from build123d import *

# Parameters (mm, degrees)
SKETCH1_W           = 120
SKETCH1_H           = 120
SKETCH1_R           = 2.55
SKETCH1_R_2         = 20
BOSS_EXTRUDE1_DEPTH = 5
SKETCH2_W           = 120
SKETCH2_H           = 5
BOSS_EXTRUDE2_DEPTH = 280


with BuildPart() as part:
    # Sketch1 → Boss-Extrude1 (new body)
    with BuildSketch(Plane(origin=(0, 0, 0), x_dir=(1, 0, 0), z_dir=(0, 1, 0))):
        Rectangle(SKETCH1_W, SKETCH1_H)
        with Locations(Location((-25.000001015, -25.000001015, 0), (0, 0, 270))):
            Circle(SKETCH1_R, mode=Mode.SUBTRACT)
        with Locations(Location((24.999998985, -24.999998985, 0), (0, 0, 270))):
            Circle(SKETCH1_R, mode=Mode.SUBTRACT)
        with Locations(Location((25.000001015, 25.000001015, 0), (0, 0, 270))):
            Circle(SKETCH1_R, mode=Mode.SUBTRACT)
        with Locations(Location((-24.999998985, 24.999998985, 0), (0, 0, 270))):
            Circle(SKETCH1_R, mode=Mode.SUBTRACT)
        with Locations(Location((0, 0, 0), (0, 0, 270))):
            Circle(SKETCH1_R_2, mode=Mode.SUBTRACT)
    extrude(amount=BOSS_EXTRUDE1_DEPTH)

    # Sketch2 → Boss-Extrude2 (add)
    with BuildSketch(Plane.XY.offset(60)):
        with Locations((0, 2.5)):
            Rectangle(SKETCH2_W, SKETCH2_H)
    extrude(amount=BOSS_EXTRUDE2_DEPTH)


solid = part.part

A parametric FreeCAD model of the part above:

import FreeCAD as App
import Part
import Sketcher
from FreeCAD import Vector

doc = App.newDocument("Part")
body = doc.addObject("PartDesign::Body", "Body")

# Sketch on XZ plane
sketch1 = body.newObject("Sketcher::SketchObject", "Sketch")
sketch1.AttachmentSupport = (doc.getObject("XZ_Plane"), [""])
sketch1.MapMode = "FlatFace"
sketch1.addGeometry(Part.LineSegment(Vector(-60, -60, 0), Vector(-60, 60, 0)), False)
sketch1.addGeometry(Part.LineSegment(Vector(-60, 60, 0), Vector(60, 60, 0)), False)
sketch1.addGeometry(Part.LineSegment(Vector(60, 60, 0), Vector(60, -60, 0)), False)
sketch1.addGeometry(Part.LineSegment(Vector(60, -60, 0), Vector(-60, -60, 0)), False)
sketch1.addGeometry(Part.Circle(Vector(-25, 25, 0), Vector(0, 0, 1), 2.5), False)
sketch1.addGeometry(Part.Circle(Vector(0, 0, 0), Vector(0, 0, 1), 20), False)
sketch1.addGeometry(Part.Circle(Vector(25, 25, 0), Vector(0, 0, 1), 2.5), False)
sketch1.addGeometry(Part.Circle(Vector(-25, -25, 0), Vector(0, 0, 1), 2.5), False)
sketch1.addGeometry(Part.Circle(Vector(25, -25, 0), Vector(0, 0, 1), 2.5), False)
sketch1.addConstraint(Sketcher.Constraint("Coincident", 0, 2, 1, 1))
sketch1.addConstraint(Sketcher.Constraint("Coincident", 1, 2, 2, 1))
sketch1.addConstraint(Sketcher.Constraint("Coincident", 2, 2, 3, 1))
sketch1.addConstraint(Sketcher.Constraint("Coincident", 3, 2, 0, 1))
sketch1.addConstraint(Sketcher.Constraint("Vertical", 0))
sketch1.addConstraint(Sketcher.Constraint("Horizontal", 1))
sketch1.addConstraint(Sketcher.Constraint("Vertical", 2))
sketch1.addConstraint(Sketcher.Constraint("Horizontal", 3))
sketch1.addConstraint(Sketcher.Constraint("Coincident", 5, 3, -1, 1))
sketch1.addConstraint(Sketcher.Constraint("Equal", 4, 6))
sketch1.addConstraint(Sketcher.Constraint("Equal", 6, 7))
sketch1.addConstraint(Sketcher.Constraint("Equal", 7, 8))
sketch1.addConstraint(Sketcher.Constraint("Symmetric", 6, 3, 7, 3, -1, 1))
sketch1.addConstraint(Sketcher.Constraint("Symmetric", 4, 3, 8, 3, -1, 1))
sketch1.addConstraint(Sketcher.Constraint("Symmetric", 0, 2, 2, 2, -1, 1))
sketch1.addConstraint(Sketcher.Constraint("Symmetric", 4, 3, 6, 3, -2))
sketch1.addConstraint(Sketcher.Constraint("Equal", 3, 0))
sketch1.addConstraint(Sketcher.Constraint("Diameter", 5, 40.0))
sketch1.addConstraint(Sketcher.Constraint("Diameter", 4, 5.1))
sketch1.addConstraint(Sketcher.Constraint("DistanceX", 1, 1, 1, 2, 120.0))
sketch1.addConstraint(Sketcher.Constraint("DistanceX", 4, 3, -1, 1, 25.000001))
sketch1.addConstraint(Sketcher.Constraint("DistanceY", -1, 1, 4, 3, 25.000001))
pad1 = body.newObject("PartDesign::Pad", "Pad")
pad1.Profile = sketch1
pad1.Length = 5
pad1.Reversed = True

# Sketch on XY plane
sketch2 = body.newObject("Sketcher::SketchObject", "Sketch001")
sketch2.AttachmentSupport = (doc.getObject("XY_Plane"), [""])
sketch2.MapMode = "FlatFace"
sketch2.AttachmentOffset = App.Placement(Vector(0, 0, 60), App.Rotation())
sketch2.addGeometry(Part.LineSegment(Vector(-60, 5, 0), Vector(-60, 0, 0)), False)
sketch2.addGeometry(Part.LineSegment(Vector(-60, 0, 0), Vector(60, 0, 0)), False)
sketch2.addGeometry(Part.LineSegment(Vector(60, 0, 0), Vector(60, 5, 0)), False)
sketch2.addGeometry(Part.LineSegment(Vector(60, 5, 0), Vector(-60, 5, 0)), False)
sketch2.addConstraint(Sketcher.Constraint("Coincident", 0, 2, 1, 1))
sketch2.addConstraint(Sketcher.Constraint("Coincident", 1, 2, 2, 1))
sketch2.addConstraint(Sketcher.Constraint("Coincident", 2, 2, 3, 1))
sketch2.addConstraint(Sketcher.Constraint("Coincident", 3, 2, 0, 1))
sketch2.addConstraint(Sketcher.Constraint("Vertical", 0))
sketch2.addConstraint(Sketcher.Constraint("Horizontal", 1))
sketch2.addConstraint(Sketcher.Constraint("Vertical", 2))
sketch2.addConstraint(Sketcher.Constraint("Horizontal", 3))
sketch2.addConstraint(Sketcher.Constraint("Symmetric", 0, 2, 1, 2, -1, 1))
sketch2.addConstraint(Sketcher.Constraint("DistanceX", 1, 1, 1, 2, 120.0))
sketch2.addConstraint(Sketcher.Constraint("DistanceY", 0, 2, 0, 1, 5.0))
pad2 = body.newObject("PartDesign::Pad", "Pad001")
pad2.Profile = sketch2
pad2.Length = 280

doc.recompute()
